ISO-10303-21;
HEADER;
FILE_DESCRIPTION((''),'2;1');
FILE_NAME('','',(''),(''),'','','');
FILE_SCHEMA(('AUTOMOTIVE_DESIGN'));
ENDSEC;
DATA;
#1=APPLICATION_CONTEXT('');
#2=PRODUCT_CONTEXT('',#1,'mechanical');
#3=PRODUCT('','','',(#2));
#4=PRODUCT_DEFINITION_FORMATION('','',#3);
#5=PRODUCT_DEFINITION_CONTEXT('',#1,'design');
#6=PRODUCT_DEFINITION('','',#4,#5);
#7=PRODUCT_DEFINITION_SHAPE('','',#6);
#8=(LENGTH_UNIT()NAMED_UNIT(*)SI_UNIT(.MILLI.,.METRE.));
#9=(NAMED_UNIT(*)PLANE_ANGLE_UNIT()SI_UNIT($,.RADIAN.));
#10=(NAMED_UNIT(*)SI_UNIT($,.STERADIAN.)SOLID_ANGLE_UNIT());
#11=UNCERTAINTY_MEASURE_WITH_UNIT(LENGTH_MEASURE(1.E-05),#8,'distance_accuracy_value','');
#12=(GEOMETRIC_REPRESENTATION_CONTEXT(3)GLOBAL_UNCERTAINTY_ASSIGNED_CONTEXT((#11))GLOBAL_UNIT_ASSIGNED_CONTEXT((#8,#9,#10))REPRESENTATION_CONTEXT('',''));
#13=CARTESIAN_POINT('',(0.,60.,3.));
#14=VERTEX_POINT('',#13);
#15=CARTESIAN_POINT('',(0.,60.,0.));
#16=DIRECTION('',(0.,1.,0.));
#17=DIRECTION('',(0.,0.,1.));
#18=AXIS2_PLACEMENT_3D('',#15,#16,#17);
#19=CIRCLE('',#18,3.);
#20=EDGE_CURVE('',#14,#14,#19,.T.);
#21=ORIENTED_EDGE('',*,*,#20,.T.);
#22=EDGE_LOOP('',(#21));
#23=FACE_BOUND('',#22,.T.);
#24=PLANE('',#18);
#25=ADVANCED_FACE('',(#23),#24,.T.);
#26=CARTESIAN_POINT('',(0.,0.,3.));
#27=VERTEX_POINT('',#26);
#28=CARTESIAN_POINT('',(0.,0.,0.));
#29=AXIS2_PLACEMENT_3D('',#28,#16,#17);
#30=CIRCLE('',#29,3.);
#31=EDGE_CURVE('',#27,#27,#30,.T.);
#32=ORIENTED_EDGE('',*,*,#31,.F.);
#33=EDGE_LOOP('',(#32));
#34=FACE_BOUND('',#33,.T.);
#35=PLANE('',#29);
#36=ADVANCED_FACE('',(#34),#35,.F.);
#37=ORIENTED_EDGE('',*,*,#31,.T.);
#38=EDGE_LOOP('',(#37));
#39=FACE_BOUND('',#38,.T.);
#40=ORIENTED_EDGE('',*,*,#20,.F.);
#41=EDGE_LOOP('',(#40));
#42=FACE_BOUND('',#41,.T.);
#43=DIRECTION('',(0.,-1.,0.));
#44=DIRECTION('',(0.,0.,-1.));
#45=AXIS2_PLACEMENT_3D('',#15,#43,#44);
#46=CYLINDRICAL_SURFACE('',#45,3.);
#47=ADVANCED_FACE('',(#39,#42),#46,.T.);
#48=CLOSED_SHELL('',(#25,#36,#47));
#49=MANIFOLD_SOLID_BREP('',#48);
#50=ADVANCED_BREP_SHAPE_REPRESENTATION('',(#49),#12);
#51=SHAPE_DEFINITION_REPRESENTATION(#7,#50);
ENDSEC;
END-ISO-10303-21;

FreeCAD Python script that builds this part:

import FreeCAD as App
import Part
import Sketcher

doc = App.newDocument("Part")
params = doc.addObject("Spreadsheet::Sheet", "Params")
for row, (alias, value) in enumerate([
    ("sketch1_diameter", "6 mm"),
    ("pad1_length", "60 mm"),
], start=1):
    params.set(f"A{row}", alias)
    params.set(f"B{row}", "=" + value)
    params.setAlias(f"B{row}", alias)

body = doc.addObject("PartDesign::Body", "Body")

sketch1 = body.newObject("Sketcher::SketchObject", "Sketch")
sketch1.AttachmentSupport = (doc.getObject("XZ_Plane"), [""])
sketch1.MapMode = "FlatFace"
sketch1.addGeometry(Part.Circle(App.Vector(0, 0, 0), App.Vector(0, 0, 1), 3), False)
sketch1.addConstraint([
    Sketcher.Constraint("Coincident", 0, 3, -1, 1),
    Sketcher.Constraint("Diameter", 0, 6.0),
])
sketch1.setExpression("Constraints[1]", "Params.sketch1_diameter")
pad1 = body.newObject("PartDesign::Pad", "Pad")
pad1.Profile = sketch1
pad1.setExpression("Length", "Params.pad1_length")
pad1.Reversed = True

doc.recompute()
